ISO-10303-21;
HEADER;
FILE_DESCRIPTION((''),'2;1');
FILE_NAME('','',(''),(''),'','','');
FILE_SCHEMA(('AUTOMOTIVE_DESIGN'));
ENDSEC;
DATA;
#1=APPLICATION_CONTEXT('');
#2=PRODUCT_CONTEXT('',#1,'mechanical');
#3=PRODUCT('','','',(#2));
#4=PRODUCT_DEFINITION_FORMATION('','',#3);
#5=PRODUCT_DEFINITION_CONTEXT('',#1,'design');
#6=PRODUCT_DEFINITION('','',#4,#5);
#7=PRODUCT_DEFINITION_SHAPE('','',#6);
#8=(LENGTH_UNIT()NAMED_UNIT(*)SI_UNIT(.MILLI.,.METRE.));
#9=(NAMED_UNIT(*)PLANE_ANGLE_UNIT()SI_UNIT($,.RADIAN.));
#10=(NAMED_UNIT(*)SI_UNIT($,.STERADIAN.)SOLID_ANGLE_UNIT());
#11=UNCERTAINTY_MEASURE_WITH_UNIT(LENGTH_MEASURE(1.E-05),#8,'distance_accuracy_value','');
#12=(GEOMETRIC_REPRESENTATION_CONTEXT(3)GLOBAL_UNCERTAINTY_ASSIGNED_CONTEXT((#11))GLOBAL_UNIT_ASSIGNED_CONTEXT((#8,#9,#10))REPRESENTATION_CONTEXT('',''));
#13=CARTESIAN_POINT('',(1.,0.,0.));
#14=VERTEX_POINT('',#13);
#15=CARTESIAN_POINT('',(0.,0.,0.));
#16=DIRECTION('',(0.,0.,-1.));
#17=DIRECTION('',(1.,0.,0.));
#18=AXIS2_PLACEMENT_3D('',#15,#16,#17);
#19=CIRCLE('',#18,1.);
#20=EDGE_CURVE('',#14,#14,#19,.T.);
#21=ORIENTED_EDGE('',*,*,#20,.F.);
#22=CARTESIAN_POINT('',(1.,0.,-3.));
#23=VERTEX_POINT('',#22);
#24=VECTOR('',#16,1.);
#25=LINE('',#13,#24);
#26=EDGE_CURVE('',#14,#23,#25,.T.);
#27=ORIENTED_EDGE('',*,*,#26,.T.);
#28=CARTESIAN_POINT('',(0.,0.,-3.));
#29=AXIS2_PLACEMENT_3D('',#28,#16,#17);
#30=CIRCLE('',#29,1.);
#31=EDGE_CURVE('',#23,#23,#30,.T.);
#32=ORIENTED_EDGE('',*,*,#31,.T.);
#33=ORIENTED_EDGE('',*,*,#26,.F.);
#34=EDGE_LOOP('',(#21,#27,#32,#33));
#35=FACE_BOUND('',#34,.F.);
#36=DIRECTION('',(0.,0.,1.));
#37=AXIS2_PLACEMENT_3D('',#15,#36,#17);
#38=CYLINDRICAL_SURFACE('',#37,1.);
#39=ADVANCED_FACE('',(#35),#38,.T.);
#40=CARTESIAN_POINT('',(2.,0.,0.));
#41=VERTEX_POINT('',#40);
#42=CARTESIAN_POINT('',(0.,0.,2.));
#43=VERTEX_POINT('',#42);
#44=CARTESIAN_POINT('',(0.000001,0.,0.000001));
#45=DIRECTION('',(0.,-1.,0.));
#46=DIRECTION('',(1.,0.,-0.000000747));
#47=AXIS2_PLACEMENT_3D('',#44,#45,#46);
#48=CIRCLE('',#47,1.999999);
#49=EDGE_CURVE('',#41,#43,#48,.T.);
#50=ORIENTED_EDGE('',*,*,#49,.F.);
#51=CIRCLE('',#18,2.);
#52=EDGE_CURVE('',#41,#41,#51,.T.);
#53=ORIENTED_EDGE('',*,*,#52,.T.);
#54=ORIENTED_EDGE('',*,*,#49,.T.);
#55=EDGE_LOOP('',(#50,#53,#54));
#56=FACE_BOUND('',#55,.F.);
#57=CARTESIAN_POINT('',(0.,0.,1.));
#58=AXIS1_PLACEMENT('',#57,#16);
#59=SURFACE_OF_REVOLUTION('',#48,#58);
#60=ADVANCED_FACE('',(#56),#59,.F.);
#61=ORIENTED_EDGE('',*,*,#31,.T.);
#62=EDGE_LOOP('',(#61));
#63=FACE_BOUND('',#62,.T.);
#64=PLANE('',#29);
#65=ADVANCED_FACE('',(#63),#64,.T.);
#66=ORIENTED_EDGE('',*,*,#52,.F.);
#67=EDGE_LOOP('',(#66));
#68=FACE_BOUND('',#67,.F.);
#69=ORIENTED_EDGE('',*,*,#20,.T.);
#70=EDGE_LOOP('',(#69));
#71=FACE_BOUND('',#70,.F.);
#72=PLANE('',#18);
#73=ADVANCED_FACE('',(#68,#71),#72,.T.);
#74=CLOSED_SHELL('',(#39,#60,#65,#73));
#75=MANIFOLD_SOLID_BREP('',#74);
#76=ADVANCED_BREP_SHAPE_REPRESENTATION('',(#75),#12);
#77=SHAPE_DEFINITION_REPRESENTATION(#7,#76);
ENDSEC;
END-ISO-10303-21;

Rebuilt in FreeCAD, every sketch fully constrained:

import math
import FreeCAD as App
import Part
import Sketcher
from FreeCAD import Vector

doc = App.newDocument("Part")
body = doc.addObject("PartDesign::Body", "Body")

sketch1 = body.newObject("Sketcher::SketchObject", "Sketch")
sketch1.AttachmentSupport = (doc.getObject("XZ_Plane"), [""])
sketch1.MapMode = "FlatFace"
sketch1.addGeometry([
    Part.LineSegment(Vector(0, 0, 0), Vector(2, 0, 0)),
    Part.ArcOfCircle(Part.Circle(Vector(0, 0, 0), Vector(0, 0, 1), 2), math.radians(0), math.radians(90)),
    Part.LineSegment(Vector(0, 2, 0), Vector(0, 0, 0)),
], False)
sketch1.addConstraint([
    Sketcher.Constraint("Coincident", 0, 2, 1, 1),
    Sketcher.Constraint("Coincident", 1, 2, 2, 1),
    Sketcher.Constraint("Coincident", 2, 2, 0, 1),
    Sketcher.Constraint("Horizontal", 0),
    Sketcher.Constraint("Vertical", 2),
    Sketcher.Constraint("Coincident", 1, 3, -1, 1),
    Sketcher.Constraint("Coincident", 2, 2, -1, 1),
    Sketcher.Constraint("Radius", 1, 1.999999),
])
revolution = body.newObject("PartDesign::Revolution", "Revolution")
revolution.Profile = sketch1
revolution.ReferenceAxis = (sketch1, ["V_Axis"])
revolution.Angle = 360

sketch2 = body.newObject("Sketcher::SketchObject", "Sketch001")
sketch2.AttachmentSupport = (doc.getObject("XY_Plane"), [""])
sketch2.MapMode = "FlatFace"
sketch2.addGeometry(Part.Circle(Vector(0, 0, 0), Vector(0, 0, 1), 1), False)
sketch2.addConstraint([
    Sketcher.Constraint("Coincident", 0, 3, -1, 1),
    Sketcher.Constraint("Diameter", 0, 2.0),
])
pad1 = body.newObject("PartDesign::Pad", "Pad")
pad1.Profile = sketch2
pad1.Length = 3
pad1.Reversed = True

doc.recompute()
